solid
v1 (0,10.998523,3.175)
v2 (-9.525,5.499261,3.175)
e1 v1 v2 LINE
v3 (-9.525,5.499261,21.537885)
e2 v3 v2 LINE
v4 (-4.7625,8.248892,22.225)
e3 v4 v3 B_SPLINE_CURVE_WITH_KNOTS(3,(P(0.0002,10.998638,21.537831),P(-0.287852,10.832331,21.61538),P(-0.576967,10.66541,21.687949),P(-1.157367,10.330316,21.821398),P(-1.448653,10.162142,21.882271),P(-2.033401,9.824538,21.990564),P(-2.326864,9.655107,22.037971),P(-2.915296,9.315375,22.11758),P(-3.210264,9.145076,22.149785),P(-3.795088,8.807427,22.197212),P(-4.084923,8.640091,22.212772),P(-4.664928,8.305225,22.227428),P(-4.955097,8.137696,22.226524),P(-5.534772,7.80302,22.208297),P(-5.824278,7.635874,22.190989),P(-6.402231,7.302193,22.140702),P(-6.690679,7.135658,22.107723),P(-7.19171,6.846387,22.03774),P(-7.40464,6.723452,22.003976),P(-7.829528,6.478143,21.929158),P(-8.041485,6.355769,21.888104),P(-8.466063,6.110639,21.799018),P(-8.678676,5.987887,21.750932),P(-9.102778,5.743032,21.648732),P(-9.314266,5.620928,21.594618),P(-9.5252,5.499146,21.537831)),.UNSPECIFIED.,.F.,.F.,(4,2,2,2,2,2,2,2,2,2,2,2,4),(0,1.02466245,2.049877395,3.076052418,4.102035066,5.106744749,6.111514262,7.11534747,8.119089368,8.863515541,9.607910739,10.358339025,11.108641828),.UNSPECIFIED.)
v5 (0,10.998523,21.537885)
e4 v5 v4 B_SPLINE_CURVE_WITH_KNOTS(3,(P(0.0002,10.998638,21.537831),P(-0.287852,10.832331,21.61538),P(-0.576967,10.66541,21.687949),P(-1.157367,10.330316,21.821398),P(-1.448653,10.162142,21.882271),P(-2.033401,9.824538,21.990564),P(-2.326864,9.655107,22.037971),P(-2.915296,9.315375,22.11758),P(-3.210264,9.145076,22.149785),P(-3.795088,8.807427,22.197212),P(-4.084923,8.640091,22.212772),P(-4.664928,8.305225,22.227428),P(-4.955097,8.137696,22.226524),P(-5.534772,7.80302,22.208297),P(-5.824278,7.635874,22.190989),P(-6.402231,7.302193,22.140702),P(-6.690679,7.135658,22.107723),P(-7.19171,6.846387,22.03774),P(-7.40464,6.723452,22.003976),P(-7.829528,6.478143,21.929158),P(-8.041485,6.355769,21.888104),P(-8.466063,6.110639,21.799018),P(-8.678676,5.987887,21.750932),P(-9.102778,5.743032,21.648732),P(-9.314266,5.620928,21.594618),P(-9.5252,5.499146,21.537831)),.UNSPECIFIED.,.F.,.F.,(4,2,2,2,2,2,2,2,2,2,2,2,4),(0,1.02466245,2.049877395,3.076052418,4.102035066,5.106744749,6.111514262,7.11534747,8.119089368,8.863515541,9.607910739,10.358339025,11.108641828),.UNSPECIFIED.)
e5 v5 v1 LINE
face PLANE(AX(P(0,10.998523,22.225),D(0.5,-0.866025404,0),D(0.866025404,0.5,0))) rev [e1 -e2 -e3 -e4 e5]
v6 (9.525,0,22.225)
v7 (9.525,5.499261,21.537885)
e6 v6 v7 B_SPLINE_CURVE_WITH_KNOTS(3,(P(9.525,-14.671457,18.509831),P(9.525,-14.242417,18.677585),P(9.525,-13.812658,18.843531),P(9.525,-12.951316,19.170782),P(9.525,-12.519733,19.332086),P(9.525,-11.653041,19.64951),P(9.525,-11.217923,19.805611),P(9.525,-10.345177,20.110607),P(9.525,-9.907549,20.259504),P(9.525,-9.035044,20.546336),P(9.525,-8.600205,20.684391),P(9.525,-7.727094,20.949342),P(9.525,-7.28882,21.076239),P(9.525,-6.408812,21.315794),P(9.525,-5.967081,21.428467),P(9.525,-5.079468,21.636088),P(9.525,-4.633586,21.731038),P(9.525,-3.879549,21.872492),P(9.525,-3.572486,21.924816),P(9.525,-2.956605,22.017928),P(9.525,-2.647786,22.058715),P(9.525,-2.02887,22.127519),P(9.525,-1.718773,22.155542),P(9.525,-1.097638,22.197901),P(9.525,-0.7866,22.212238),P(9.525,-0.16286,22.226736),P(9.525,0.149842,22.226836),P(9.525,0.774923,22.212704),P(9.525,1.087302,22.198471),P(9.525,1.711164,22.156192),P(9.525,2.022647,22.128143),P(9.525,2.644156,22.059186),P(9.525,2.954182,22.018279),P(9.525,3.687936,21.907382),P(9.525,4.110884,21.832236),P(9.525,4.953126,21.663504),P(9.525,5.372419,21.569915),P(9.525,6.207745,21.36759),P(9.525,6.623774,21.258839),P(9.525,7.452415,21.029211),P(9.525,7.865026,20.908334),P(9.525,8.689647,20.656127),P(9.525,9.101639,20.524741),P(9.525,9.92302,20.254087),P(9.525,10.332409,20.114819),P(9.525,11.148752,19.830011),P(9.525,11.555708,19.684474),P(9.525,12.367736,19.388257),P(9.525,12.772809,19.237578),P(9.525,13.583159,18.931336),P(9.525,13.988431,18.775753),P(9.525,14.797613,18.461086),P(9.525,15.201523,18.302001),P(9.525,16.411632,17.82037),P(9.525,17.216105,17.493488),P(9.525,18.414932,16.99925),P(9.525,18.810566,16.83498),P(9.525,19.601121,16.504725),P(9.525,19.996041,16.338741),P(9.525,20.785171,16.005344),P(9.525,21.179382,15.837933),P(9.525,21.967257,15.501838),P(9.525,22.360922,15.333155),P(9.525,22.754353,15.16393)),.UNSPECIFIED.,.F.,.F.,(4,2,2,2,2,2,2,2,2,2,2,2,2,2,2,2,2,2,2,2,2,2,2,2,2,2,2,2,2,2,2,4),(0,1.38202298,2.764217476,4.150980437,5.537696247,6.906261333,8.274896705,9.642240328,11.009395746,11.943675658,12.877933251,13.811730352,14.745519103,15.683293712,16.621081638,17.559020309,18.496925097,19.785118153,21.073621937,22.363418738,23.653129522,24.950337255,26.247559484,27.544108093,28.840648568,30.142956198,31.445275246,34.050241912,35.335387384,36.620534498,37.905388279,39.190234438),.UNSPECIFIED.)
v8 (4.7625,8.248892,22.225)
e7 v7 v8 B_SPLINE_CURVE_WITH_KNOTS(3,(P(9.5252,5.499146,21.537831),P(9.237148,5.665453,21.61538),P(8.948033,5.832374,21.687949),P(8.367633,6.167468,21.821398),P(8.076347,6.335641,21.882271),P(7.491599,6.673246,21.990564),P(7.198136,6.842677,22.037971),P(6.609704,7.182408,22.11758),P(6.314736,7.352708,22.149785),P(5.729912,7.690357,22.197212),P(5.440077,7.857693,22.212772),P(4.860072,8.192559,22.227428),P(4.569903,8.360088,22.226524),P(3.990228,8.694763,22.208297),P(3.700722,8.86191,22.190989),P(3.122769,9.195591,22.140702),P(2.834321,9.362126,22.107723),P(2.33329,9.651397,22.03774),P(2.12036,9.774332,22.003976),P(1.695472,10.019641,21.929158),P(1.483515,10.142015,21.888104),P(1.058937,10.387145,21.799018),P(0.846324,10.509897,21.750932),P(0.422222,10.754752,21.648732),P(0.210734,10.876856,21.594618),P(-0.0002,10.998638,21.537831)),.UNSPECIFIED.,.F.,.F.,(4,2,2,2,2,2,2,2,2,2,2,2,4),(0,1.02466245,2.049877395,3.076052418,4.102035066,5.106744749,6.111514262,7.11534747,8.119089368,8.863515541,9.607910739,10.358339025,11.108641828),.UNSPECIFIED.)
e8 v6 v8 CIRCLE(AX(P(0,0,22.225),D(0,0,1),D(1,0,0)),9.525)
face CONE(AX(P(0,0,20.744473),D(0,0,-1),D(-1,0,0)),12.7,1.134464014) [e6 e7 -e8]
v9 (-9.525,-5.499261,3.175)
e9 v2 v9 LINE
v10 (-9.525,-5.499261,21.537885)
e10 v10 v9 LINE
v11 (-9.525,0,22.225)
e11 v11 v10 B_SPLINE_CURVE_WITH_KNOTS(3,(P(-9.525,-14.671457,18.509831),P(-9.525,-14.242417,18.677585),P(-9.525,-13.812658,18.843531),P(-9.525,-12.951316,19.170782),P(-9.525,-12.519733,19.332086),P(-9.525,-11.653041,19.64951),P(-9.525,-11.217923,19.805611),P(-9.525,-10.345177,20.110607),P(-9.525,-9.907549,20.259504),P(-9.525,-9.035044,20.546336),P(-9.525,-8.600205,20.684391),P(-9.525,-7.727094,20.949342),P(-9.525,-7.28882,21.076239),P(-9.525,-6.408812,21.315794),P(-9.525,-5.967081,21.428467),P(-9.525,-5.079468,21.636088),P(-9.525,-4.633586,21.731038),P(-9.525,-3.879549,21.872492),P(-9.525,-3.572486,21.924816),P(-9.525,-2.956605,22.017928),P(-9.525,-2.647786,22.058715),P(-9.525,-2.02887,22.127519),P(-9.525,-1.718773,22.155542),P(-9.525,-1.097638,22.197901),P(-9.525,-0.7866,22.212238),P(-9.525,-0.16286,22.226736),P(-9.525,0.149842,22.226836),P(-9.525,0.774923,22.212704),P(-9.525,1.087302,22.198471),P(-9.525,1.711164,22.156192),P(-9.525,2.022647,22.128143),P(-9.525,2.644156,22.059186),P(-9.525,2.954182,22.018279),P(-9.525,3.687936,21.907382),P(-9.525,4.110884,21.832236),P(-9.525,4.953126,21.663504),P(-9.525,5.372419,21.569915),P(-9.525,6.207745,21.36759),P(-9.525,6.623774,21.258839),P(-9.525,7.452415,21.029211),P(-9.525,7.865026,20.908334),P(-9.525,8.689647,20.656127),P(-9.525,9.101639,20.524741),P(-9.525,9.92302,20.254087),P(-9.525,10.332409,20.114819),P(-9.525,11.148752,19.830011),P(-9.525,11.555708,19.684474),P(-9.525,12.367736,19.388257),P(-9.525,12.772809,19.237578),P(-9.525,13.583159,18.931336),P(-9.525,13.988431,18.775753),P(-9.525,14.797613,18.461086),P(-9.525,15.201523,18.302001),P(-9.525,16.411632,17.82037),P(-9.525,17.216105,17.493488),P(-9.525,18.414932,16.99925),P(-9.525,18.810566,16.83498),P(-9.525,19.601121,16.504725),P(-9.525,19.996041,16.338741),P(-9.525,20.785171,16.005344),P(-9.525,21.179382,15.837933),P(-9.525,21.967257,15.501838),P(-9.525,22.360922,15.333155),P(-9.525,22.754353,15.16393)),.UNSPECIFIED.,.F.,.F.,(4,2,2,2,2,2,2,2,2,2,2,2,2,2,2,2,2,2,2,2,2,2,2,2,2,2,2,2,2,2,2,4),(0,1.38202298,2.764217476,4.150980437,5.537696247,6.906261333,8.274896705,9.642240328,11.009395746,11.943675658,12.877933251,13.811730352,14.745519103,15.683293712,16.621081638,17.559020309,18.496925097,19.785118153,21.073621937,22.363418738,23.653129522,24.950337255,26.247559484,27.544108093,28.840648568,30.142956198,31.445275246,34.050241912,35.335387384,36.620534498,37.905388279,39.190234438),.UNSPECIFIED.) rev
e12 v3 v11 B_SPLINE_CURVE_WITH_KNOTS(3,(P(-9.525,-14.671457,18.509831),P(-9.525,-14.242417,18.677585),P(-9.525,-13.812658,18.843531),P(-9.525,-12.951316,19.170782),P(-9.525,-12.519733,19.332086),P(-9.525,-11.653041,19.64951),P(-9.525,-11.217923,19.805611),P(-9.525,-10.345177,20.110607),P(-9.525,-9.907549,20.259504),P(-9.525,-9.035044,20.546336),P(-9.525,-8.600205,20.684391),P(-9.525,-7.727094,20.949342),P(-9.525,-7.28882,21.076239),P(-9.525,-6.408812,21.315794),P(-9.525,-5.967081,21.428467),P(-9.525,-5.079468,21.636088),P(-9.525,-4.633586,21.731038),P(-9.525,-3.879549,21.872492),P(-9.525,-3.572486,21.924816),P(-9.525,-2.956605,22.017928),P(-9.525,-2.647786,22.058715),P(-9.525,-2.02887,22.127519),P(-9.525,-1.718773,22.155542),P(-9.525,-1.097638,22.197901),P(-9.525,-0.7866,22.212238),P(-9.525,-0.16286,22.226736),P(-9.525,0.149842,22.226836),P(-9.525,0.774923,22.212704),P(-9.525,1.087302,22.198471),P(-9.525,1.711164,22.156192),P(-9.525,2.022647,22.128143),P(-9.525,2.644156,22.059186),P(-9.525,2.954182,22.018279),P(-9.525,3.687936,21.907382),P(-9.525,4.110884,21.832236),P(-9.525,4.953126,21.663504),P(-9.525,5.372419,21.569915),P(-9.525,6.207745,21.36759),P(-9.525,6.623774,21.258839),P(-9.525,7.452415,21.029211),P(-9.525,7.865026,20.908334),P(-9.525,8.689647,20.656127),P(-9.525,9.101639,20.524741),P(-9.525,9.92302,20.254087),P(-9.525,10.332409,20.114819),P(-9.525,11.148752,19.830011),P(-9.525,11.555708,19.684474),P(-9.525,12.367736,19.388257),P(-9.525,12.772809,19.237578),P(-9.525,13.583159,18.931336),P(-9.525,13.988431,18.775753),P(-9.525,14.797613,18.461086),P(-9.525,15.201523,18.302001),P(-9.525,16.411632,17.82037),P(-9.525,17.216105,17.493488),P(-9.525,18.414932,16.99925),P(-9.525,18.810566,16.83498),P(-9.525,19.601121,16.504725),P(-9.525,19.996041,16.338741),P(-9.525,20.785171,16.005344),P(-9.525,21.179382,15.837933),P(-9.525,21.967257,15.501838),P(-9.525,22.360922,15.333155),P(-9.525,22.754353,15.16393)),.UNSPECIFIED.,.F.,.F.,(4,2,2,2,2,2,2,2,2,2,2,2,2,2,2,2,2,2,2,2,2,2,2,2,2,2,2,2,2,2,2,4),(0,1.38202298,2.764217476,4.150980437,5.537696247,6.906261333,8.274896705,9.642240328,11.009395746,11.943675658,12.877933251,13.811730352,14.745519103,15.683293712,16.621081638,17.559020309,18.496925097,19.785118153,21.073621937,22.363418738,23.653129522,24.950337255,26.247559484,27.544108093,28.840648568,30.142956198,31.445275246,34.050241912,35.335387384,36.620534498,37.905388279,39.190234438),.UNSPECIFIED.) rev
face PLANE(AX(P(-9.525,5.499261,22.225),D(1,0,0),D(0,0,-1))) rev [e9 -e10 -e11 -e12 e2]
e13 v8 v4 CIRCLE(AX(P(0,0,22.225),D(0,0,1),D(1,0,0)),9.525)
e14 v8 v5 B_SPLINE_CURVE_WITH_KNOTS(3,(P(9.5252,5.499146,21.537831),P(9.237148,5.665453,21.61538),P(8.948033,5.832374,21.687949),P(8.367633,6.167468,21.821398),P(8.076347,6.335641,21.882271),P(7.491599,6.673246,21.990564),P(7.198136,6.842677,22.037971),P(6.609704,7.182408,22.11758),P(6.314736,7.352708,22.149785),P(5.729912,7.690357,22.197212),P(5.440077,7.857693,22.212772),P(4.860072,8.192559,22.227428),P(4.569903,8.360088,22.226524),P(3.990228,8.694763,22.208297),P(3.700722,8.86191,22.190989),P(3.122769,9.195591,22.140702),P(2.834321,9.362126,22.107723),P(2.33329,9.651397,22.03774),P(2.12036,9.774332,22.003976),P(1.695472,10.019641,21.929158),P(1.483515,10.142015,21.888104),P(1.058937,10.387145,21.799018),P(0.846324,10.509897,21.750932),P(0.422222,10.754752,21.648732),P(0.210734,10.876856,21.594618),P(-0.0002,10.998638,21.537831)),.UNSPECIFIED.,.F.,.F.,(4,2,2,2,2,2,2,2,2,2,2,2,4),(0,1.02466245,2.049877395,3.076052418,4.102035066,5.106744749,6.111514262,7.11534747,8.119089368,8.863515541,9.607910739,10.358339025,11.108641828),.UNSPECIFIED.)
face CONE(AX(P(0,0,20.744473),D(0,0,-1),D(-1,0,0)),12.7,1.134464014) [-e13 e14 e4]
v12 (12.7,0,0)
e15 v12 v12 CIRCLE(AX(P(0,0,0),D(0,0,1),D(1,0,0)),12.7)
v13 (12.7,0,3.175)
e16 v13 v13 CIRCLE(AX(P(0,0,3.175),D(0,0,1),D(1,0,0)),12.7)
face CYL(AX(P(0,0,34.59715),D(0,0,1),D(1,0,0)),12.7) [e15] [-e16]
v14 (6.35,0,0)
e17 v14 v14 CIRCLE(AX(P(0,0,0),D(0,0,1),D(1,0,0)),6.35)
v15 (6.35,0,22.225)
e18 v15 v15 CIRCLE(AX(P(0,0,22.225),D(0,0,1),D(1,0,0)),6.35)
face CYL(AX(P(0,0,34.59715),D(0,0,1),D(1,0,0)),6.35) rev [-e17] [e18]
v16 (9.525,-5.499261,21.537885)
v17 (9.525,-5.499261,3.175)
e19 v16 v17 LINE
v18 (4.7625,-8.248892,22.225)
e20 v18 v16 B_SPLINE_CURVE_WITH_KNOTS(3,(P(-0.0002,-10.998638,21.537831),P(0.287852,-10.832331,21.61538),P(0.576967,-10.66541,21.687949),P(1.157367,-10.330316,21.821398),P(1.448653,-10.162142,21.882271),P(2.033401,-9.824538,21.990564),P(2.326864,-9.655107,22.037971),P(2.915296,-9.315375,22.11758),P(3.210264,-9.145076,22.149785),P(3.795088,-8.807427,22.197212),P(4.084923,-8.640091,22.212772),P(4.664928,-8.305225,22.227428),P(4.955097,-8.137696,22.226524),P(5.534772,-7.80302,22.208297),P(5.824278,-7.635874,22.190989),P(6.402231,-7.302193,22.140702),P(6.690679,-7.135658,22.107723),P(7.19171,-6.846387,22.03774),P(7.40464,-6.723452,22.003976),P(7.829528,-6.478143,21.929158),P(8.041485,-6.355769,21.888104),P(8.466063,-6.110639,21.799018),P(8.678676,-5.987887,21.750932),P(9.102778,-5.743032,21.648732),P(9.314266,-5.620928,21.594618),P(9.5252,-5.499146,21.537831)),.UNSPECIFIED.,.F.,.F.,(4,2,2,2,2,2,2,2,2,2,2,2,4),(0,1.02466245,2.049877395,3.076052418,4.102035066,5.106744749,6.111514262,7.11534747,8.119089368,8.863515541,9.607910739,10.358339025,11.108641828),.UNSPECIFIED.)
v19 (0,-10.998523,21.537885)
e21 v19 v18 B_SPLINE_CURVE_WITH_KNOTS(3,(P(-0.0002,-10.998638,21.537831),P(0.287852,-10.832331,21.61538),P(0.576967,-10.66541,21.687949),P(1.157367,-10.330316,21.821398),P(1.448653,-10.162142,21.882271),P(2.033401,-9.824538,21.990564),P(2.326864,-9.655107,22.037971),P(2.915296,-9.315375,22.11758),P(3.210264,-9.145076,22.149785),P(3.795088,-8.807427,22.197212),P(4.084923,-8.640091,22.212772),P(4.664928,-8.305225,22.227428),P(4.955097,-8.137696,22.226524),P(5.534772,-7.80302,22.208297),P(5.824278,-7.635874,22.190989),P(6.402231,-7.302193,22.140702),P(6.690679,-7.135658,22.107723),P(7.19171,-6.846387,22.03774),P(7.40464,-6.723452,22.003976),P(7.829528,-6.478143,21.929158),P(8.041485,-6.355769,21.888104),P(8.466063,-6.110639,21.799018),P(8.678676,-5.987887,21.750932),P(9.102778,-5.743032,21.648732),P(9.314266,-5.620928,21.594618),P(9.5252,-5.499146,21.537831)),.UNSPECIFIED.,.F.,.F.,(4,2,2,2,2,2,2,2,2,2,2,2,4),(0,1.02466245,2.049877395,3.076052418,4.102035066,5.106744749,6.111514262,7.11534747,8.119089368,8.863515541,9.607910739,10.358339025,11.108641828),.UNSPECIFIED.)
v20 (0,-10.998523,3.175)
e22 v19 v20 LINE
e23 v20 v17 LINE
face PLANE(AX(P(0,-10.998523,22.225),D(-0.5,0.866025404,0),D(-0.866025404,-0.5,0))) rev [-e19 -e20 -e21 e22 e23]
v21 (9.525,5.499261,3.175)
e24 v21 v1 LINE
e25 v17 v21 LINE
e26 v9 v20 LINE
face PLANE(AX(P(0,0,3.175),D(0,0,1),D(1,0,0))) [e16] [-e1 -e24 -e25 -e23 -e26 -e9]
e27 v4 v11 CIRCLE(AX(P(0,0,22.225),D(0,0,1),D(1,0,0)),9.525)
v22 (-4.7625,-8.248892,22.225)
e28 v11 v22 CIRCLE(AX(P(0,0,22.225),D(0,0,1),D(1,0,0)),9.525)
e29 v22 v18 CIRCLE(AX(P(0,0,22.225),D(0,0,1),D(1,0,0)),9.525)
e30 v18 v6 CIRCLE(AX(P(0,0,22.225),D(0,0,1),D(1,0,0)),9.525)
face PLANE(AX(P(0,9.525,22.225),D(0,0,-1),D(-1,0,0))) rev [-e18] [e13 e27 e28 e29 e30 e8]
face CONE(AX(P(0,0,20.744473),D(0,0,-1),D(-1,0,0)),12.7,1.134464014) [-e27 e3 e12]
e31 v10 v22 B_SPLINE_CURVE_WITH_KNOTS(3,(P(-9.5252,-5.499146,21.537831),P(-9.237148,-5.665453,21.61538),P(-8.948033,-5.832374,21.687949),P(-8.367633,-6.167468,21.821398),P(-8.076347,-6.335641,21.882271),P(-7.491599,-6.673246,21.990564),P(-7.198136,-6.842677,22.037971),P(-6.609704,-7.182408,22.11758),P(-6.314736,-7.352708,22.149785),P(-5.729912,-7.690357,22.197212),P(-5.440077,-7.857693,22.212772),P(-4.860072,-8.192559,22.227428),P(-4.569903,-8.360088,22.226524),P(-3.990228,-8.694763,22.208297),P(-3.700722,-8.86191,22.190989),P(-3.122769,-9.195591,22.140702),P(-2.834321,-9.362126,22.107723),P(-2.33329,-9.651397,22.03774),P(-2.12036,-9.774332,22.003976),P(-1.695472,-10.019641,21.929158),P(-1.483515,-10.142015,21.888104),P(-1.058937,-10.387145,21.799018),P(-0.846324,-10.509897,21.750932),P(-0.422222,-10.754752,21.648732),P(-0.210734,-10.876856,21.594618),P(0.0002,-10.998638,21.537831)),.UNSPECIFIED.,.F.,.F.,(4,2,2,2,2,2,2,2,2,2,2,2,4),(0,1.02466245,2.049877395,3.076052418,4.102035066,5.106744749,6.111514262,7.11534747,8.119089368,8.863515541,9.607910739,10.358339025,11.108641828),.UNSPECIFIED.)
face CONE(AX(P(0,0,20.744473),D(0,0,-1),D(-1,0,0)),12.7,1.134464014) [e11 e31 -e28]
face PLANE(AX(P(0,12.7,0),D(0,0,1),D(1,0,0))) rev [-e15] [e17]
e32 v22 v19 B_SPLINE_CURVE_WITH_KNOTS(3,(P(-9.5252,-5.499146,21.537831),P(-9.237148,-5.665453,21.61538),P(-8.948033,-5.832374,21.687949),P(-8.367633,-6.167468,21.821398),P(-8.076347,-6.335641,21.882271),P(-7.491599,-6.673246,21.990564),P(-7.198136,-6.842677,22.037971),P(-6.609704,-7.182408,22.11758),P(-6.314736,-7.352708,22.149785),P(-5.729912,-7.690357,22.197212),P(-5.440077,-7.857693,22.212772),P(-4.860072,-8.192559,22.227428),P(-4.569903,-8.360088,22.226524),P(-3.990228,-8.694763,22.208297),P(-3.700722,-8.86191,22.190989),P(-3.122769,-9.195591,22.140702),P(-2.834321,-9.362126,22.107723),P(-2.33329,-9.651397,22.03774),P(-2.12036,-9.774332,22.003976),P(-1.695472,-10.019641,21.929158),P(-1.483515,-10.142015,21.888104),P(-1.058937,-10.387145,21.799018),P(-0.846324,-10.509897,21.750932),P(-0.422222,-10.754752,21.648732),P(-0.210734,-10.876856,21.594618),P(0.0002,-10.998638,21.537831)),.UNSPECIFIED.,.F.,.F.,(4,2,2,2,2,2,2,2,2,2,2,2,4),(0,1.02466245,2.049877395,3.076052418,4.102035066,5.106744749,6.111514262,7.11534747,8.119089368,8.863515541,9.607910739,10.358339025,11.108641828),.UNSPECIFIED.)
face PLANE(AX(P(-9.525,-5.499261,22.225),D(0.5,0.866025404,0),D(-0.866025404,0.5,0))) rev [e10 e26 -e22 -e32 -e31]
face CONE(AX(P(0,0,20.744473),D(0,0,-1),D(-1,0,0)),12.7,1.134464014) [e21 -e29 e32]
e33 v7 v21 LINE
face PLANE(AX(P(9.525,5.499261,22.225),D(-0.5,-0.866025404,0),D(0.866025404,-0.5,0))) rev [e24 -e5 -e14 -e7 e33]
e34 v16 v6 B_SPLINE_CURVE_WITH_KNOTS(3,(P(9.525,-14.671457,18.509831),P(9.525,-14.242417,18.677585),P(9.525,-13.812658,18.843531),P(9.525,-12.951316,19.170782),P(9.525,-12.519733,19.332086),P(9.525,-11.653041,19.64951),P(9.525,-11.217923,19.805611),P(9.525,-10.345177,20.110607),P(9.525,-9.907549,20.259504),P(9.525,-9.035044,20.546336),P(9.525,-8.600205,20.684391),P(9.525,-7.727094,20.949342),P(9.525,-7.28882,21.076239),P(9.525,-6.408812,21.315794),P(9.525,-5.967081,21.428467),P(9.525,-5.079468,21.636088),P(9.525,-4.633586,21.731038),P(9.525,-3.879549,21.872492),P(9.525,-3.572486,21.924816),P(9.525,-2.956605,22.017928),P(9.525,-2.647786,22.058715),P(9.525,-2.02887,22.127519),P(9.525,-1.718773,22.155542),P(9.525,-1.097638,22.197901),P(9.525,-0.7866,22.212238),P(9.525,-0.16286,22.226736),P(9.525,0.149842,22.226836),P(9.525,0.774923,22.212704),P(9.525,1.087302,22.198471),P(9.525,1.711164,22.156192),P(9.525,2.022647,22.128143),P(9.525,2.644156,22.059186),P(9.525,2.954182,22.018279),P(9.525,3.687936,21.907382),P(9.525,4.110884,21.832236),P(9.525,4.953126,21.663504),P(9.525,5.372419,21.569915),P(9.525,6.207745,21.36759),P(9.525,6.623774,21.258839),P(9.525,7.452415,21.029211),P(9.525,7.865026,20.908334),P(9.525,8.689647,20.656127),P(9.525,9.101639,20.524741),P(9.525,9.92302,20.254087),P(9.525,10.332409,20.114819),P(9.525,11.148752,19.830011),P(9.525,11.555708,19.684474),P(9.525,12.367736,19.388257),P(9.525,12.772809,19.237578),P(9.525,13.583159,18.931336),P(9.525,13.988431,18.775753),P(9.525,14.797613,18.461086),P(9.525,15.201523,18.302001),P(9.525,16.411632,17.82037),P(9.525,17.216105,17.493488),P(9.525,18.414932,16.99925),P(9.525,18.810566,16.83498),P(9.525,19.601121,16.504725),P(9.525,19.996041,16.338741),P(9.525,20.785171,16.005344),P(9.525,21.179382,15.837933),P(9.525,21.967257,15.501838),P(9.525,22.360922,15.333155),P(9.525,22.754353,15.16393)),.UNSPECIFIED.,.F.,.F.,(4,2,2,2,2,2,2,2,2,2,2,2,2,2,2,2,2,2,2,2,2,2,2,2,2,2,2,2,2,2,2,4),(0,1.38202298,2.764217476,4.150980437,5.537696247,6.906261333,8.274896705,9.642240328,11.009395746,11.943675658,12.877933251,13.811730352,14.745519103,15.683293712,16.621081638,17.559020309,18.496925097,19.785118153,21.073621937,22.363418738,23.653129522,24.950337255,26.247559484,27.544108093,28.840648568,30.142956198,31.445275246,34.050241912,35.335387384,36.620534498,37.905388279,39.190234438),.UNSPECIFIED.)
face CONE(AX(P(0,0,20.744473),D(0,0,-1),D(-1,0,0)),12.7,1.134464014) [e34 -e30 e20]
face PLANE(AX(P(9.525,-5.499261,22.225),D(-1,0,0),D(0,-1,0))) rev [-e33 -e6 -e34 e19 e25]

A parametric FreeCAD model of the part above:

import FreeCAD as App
import Part
import Sketcher
Q = App.Units.Quantity


def add_polygon(sketch, points):
    """Adds a closed chain of lines whose ends are joined by coincident constraints."""
    first, n = sketch.GeometryCount, len(points)
    for a, b in zip(points, points[1:] + points[:1]):
        sketch.addGeometry(Part.LineSegment(App.Vector(*a, 0), App.Vector(*b, 0)), False)
    for i in range(n):
        sketch.addConstraint(Sketcher.Constraint("Coincident", first + i, 2, first + (i + 1) % n, 1))

doc = App.newDocument("Part")
body = doc.addObject("PartDesign::Body", "Body")

# Sketch on YZ plane
sketch1 = body.newObject("Sketcher::SketchObject", "Sketch")
sketch1.AttachmentSupport = (doc.getObject("YZ_Plane"), [""])
sketch1.MapMode = "FlatFace"
add_polygon(sketch1, [(12.7, 0), (12.7, 20.7), (9.5, 22.2), (6.3, 22.2), (6.3, 0)])  # lines 0-4
sketch1.addConstraint(Sketcher.Constraint("Vertical", 0))
sketch1.addConstraint(Sketcher.Constraint("Horizontal", 2))
sketch1.addConstraint(Sketcher.Constraint("Vertical", 3))
sketch1.addConstraint(Sketcher.Constraint("Horizontal", 4))
sketch1.addConstraint(Sketcher.Constraint("PointOnObject", 3, 2, -1))
sketch1.addConstraint(Sketcher.Constraint("Angle", 1, Q("155 deg")))
sketch1.addConstraint(Sketcher.Constraint("DistanceX", 4, 1, 4, 2, Q("0.25 in")))
sketch1.addConstraint(Sketcher.Constraint("DistanceX", -1, 1, 0, 2, Q("0.5 in")))
sketch1.addConstraint(Sketcher.Constraint("DistanceX", 2, 2, 2, 1, Q("0.125 in")))
sketch1.addConstraint(Sketcher.Constraint("DistanceY", 3, 2, 3, 1, Q("0.875 in")))
revolution = body.newObject("PartDesign::Revolution", "Revolution")
revolution.Profile = sketch1
revolution.ReferenceAxis = (sketch1, ["V_Axis"])
revolution.Angle = 360

# Sketch on XY plane
sketch2 = body.newObject("Sketcher::SketchObject", "Sketch001")
sketch2.AttachmentSupport = (doc.getObject("XY_Plane"), [""])
sketch2.MapMode = "FlatFace"
sketch2.AttachmentOffset = App.Placement(App.Vector(0, 0, 0.125 * 25.4), App.Rotation())
add_polygon(sketch2, [(-18, 18), (-18, -18), (18, -18), (18, 18)])  # lines 0-3
add_polygon(sketch2, [(10, 5), (10, -5), (0, -11), (-10, -5), (-10, 5), (0, 11)])  # lines 4-9
sketch2.addConstraint(Sketcher.Constraint("Vertical", 0))
sketch2.addConstraint(Sketcher.Constraint("Horizontal", 1))
sketch2.addConstraint(Sketcher.Constraint("Vertical", 2))
sketch2.addConstraint(Sketcher.Constraint("Horizontal", 3))
sketch2.addConstraint(Sketcher.Constraint("Vertical", 4))
sketch2.addConstraint(Sketcher.Constraint("Vertical", 7))
sketch2.addConstraint(Sketcher.Constraint("Symmetric", 0, 2, 2, 2, -1, 1))
sketch2.addConstraint(Sketcher.Constraint("Symmetric", 4, 2, 7, 2, -1, 1))
sketch2.addConstraint(Sketcher.Constraint("Symmetric", 5, 2, 8, 2, -1, 1))
sketch2.addConstraint(Sketcher.Constraint("PointOnObject", 5, 2, -2))
sketch2.addConstraint(Sketcher.Constraint("Parallel", 6, 9))
sketch2.addConstraint(Sketcher.Constraint("Horizontal", 4, 2, 6, 2))
sketch2.addConstraint(Sketcher.Constraint("Equal", 3, 0))
sketch2.addConstraint(Sketcher.Constraint("Angle", 5, Q("-150 deg")))
sketch2.addConstraint(Sketcher.Constraint("DistanceX", 6, 2, 4, 2, Q("0.75 in")))
sketch2.addConstraint(Sketcher.Constraint("DistanceX", 1, 1, 1, 2, Q("35.848 mm")))
sketch2.addConstraint(Sketcher.Constraint("DistanceY", 4, 2, 4, 1, Q("10.998523 mm")))
pocket1 = body.newObject("PartDesign::Pocket", "Pocket")
pocket1.Profile = sketch2
pocket1.Type = "ThroughAll"
pocket1.Reversed = True

doc.recompute()
